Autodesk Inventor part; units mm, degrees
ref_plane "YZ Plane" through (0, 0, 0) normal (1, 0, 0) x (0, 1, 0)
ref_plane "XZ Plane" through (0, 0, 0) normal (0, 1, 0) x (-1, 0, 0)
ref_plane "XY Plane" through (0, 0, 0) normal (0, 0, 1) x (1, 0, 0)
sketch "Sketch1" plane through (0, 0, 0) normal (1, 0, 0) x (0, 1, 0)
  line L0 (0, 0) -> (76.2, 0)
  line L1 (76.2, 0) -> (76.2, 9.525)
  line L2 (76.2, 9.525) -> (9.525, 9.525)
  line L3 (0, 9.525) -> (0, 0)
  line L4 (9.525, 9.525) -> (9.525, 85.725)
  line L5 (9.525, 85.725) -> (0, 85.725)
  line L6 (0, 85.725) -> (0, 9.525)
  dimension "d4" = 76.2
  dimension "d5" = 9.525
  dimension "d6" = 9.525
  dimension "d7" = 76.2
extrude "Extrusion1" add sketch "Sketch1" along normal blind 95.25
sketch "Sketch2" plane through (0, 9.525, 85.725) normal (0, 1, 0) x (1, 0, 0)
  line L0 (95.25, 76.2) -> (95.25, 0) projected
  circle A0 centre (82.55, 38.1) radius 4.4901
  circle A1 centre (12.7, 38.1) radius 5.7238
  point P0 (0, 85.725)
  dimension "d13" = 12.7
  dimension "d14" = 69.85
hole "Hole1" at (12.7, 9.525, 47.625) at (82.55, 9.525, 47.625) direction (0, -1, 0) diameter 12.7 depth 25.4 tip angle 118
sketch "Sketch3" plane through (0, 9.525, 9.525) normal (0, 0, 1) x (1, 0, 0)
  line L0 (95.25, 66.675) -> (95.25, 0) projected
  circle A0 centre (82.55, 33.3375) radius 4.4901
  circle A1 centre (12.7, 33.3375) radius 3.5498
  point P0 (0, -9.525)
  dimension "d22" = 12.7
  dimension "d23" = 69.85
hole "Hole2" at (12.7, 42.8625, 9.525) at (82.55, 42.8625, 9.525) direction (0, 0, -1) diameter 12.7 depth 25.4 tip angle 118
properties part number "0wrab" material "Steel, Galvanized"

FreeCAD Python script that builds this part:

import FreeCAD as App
import Part
import Sketcher

V = App.Vector
Q = App.Units.Quantity

doc = App.newDocument("Part")
body = doc.addObject("PartDesign::Body", "Body")

# Sketch on YZ plane
sketch1 = doc.addObject("Sketcher::SketchObject", "Sketch")
body.addObject(sketch1)
sketch1.AttachmentSupport = (doc.YZ_Plane, [""])
sketch1.MapMode = "FlatFace"
sketch1.addGeometry([
    Part.LineSegment(V(0, 86, 0), V(0, 0, 0)),  # 0
    Part.LineSegment(V(0, 0, 0), V(76, 0, 0)),  # 1
    Part.LineSegment(V(76, 0, 0), V(76, 10, 0)),  # 2
    Part.LineSegment(V(76, 10, 0), V(10, 10, 0)),  # 3
    Part.LineSegment(V(10, 10, 0), V(10, 86, 0)),  # 4
    Part.LineSegment(V(10, 86, 0), V(0, 86, 0)),  # 5
], False)
sketch1.addConstraint([
    Sketcher.Constraint("Coincident", 0, 2, 1, 1),
    Sketcher.Constraint("Coincident", 1, 2, 2, 1),
    Sketcher.Constraint("Coincident", 2, 2, 3, 1),
    Sketcher.Constraint("Coincident", 3, 2, 4, 1),
    Sketcher.Constraint("Coincident", 4, 2, 5, 1),
    Sketcher.Constraint("Coincident", 5, 2, 0, 1),
    Sketcher.Constraint("Vertical", 0),
    Sketcher.Constraint("Horizontal", 1),
    Sketcher.Constraint("Vertical", 2),
    Sketcher.Constraint("Horizontal", 3),
    Sketcher.Constraint("Vertical", 4),
    Sketcher.Constraint("Horizontal", 5),
    Sketcher.Constraint("Coincident", 0, 2, -1, 1),
    Sketcher.Constraint("Equal", 5, 2),
    Sketcher.Constraint("Equal", 1, 4),
    Sketcher.Constraint("DistanceX", 1, 1, 1, 2, Q("3 in")),
    Sketcher.Constraint("DistanceX", 5, 2, 5, 1, Q("0.375 in")),
])
pad1 = doc.addObject("PartDesign::Pad", "Pad")
body.addObject(pad1)
pad1.Profile = sketch1
pad1.Length = Q("3.75 in")

# Sketch on XZ plane
sketch2 = doc.addObject("Sketcher::SketchObject", "Sketch001")
body.addObject(sketch2)
sketch2.AttachmentSupport = (doc.XZ_Plane, [""])
sketch2.MapMode = "FlatFace"
sketch2.AttachmentOffset = App.Placement(V(0, 0, -0.375 * 25.4), App.Rotation())
sketch2.addGeometry([
    Part.Circle(V(13, 48, 0), V(0, 0, 1), 6),
    Part.Circle(V(83, 48, 0), V(0, 0, 1), 6),
], False)
sketch2.addConstraint([
    Sketcher.Constraint("Equal", 0, 1),
    Sketcher.Constraint("Horizontal", 0, 3, 1, 3),
    Sketcher.Constraint("Diameter", 0, Q("0.5 in")),
    Sketcher.Constraint("DistanceX", -1, 1, 0, 3, Q("0.5 in")),
    Sketcher.Constraint("DistanceX", -1, 1, 1, 3, Q("3.25 in")),
    Sketcher.Constraint("DistanceY", -1, 1, 0, 3, Q("1.875 in")),
])
doc.recompute()
hole = doc.addObject("PartDesign::Hole", "Hole")
body.addObject(hole)
hole.Profile = sketch2
hole.ThreadType = "None"
hole.Diameter = Q("0.5 in")
hole.DepthType = "Dimension"
hole.Depth = Q("1 in")
hole.DrillPoint = "Angled"
hole.DrillPointAngle = 118
hole.Reversed = True

# Sketch on XY plane
sketch3 = doc.addObject("Sketcher::SketchObject", "Sketch002")
body.addObject(sketch3)
sketch3.AttachmentSupport = (doc.XY_Plane, [""])
sketch3.MapMode = "FlatFace"
sketch3.AttachmentOffset = App.Placement(V(0, 0, 0.375 * 25.4), App.Rotation())
sketch3.addGeometry([
    Part.Circle(V(13, 43, 0), V(0, 0, 1), 6),
    Part.Circle(V(83, 43, 0), V(0, 0, 1), 6),
], False)
sketch3.addConstraint([
    Sketcher.Constraint("Equal", 0, 1),
    Sketcher.Constraint("Horizontal", 0, 3, 1, 3),
    Sketcher.Constraint("Diameter", 0, Q("0.5 in")),
    Sketcher.Constraint("DistanceX", -1, 1, 0, 3, Q("0.5 in")),
    Sketcher.Constraint("DistanceX", -1, 1, 1, 3, Q("3.25 in")),
    Sketcher.Constraint("DistanceY", -1, 1, 0, 3, Q("1.6875 in")),
])
doc.recompute()
hole2 = doc.addObject("PartDesign::Hole", "Hole001")
body.addObject(hole2)
hole2.Profile = sketch3
hole2.ThreadType = "None"
hole2.Diameter = Q("0.5 in")
hole2.DepthType = "Dimension"
hole2.Depth = Q("1 in")
hole2.DrillPoint = "Angled"
hole2.DrillPointAngle = 118

doc.recompute()
